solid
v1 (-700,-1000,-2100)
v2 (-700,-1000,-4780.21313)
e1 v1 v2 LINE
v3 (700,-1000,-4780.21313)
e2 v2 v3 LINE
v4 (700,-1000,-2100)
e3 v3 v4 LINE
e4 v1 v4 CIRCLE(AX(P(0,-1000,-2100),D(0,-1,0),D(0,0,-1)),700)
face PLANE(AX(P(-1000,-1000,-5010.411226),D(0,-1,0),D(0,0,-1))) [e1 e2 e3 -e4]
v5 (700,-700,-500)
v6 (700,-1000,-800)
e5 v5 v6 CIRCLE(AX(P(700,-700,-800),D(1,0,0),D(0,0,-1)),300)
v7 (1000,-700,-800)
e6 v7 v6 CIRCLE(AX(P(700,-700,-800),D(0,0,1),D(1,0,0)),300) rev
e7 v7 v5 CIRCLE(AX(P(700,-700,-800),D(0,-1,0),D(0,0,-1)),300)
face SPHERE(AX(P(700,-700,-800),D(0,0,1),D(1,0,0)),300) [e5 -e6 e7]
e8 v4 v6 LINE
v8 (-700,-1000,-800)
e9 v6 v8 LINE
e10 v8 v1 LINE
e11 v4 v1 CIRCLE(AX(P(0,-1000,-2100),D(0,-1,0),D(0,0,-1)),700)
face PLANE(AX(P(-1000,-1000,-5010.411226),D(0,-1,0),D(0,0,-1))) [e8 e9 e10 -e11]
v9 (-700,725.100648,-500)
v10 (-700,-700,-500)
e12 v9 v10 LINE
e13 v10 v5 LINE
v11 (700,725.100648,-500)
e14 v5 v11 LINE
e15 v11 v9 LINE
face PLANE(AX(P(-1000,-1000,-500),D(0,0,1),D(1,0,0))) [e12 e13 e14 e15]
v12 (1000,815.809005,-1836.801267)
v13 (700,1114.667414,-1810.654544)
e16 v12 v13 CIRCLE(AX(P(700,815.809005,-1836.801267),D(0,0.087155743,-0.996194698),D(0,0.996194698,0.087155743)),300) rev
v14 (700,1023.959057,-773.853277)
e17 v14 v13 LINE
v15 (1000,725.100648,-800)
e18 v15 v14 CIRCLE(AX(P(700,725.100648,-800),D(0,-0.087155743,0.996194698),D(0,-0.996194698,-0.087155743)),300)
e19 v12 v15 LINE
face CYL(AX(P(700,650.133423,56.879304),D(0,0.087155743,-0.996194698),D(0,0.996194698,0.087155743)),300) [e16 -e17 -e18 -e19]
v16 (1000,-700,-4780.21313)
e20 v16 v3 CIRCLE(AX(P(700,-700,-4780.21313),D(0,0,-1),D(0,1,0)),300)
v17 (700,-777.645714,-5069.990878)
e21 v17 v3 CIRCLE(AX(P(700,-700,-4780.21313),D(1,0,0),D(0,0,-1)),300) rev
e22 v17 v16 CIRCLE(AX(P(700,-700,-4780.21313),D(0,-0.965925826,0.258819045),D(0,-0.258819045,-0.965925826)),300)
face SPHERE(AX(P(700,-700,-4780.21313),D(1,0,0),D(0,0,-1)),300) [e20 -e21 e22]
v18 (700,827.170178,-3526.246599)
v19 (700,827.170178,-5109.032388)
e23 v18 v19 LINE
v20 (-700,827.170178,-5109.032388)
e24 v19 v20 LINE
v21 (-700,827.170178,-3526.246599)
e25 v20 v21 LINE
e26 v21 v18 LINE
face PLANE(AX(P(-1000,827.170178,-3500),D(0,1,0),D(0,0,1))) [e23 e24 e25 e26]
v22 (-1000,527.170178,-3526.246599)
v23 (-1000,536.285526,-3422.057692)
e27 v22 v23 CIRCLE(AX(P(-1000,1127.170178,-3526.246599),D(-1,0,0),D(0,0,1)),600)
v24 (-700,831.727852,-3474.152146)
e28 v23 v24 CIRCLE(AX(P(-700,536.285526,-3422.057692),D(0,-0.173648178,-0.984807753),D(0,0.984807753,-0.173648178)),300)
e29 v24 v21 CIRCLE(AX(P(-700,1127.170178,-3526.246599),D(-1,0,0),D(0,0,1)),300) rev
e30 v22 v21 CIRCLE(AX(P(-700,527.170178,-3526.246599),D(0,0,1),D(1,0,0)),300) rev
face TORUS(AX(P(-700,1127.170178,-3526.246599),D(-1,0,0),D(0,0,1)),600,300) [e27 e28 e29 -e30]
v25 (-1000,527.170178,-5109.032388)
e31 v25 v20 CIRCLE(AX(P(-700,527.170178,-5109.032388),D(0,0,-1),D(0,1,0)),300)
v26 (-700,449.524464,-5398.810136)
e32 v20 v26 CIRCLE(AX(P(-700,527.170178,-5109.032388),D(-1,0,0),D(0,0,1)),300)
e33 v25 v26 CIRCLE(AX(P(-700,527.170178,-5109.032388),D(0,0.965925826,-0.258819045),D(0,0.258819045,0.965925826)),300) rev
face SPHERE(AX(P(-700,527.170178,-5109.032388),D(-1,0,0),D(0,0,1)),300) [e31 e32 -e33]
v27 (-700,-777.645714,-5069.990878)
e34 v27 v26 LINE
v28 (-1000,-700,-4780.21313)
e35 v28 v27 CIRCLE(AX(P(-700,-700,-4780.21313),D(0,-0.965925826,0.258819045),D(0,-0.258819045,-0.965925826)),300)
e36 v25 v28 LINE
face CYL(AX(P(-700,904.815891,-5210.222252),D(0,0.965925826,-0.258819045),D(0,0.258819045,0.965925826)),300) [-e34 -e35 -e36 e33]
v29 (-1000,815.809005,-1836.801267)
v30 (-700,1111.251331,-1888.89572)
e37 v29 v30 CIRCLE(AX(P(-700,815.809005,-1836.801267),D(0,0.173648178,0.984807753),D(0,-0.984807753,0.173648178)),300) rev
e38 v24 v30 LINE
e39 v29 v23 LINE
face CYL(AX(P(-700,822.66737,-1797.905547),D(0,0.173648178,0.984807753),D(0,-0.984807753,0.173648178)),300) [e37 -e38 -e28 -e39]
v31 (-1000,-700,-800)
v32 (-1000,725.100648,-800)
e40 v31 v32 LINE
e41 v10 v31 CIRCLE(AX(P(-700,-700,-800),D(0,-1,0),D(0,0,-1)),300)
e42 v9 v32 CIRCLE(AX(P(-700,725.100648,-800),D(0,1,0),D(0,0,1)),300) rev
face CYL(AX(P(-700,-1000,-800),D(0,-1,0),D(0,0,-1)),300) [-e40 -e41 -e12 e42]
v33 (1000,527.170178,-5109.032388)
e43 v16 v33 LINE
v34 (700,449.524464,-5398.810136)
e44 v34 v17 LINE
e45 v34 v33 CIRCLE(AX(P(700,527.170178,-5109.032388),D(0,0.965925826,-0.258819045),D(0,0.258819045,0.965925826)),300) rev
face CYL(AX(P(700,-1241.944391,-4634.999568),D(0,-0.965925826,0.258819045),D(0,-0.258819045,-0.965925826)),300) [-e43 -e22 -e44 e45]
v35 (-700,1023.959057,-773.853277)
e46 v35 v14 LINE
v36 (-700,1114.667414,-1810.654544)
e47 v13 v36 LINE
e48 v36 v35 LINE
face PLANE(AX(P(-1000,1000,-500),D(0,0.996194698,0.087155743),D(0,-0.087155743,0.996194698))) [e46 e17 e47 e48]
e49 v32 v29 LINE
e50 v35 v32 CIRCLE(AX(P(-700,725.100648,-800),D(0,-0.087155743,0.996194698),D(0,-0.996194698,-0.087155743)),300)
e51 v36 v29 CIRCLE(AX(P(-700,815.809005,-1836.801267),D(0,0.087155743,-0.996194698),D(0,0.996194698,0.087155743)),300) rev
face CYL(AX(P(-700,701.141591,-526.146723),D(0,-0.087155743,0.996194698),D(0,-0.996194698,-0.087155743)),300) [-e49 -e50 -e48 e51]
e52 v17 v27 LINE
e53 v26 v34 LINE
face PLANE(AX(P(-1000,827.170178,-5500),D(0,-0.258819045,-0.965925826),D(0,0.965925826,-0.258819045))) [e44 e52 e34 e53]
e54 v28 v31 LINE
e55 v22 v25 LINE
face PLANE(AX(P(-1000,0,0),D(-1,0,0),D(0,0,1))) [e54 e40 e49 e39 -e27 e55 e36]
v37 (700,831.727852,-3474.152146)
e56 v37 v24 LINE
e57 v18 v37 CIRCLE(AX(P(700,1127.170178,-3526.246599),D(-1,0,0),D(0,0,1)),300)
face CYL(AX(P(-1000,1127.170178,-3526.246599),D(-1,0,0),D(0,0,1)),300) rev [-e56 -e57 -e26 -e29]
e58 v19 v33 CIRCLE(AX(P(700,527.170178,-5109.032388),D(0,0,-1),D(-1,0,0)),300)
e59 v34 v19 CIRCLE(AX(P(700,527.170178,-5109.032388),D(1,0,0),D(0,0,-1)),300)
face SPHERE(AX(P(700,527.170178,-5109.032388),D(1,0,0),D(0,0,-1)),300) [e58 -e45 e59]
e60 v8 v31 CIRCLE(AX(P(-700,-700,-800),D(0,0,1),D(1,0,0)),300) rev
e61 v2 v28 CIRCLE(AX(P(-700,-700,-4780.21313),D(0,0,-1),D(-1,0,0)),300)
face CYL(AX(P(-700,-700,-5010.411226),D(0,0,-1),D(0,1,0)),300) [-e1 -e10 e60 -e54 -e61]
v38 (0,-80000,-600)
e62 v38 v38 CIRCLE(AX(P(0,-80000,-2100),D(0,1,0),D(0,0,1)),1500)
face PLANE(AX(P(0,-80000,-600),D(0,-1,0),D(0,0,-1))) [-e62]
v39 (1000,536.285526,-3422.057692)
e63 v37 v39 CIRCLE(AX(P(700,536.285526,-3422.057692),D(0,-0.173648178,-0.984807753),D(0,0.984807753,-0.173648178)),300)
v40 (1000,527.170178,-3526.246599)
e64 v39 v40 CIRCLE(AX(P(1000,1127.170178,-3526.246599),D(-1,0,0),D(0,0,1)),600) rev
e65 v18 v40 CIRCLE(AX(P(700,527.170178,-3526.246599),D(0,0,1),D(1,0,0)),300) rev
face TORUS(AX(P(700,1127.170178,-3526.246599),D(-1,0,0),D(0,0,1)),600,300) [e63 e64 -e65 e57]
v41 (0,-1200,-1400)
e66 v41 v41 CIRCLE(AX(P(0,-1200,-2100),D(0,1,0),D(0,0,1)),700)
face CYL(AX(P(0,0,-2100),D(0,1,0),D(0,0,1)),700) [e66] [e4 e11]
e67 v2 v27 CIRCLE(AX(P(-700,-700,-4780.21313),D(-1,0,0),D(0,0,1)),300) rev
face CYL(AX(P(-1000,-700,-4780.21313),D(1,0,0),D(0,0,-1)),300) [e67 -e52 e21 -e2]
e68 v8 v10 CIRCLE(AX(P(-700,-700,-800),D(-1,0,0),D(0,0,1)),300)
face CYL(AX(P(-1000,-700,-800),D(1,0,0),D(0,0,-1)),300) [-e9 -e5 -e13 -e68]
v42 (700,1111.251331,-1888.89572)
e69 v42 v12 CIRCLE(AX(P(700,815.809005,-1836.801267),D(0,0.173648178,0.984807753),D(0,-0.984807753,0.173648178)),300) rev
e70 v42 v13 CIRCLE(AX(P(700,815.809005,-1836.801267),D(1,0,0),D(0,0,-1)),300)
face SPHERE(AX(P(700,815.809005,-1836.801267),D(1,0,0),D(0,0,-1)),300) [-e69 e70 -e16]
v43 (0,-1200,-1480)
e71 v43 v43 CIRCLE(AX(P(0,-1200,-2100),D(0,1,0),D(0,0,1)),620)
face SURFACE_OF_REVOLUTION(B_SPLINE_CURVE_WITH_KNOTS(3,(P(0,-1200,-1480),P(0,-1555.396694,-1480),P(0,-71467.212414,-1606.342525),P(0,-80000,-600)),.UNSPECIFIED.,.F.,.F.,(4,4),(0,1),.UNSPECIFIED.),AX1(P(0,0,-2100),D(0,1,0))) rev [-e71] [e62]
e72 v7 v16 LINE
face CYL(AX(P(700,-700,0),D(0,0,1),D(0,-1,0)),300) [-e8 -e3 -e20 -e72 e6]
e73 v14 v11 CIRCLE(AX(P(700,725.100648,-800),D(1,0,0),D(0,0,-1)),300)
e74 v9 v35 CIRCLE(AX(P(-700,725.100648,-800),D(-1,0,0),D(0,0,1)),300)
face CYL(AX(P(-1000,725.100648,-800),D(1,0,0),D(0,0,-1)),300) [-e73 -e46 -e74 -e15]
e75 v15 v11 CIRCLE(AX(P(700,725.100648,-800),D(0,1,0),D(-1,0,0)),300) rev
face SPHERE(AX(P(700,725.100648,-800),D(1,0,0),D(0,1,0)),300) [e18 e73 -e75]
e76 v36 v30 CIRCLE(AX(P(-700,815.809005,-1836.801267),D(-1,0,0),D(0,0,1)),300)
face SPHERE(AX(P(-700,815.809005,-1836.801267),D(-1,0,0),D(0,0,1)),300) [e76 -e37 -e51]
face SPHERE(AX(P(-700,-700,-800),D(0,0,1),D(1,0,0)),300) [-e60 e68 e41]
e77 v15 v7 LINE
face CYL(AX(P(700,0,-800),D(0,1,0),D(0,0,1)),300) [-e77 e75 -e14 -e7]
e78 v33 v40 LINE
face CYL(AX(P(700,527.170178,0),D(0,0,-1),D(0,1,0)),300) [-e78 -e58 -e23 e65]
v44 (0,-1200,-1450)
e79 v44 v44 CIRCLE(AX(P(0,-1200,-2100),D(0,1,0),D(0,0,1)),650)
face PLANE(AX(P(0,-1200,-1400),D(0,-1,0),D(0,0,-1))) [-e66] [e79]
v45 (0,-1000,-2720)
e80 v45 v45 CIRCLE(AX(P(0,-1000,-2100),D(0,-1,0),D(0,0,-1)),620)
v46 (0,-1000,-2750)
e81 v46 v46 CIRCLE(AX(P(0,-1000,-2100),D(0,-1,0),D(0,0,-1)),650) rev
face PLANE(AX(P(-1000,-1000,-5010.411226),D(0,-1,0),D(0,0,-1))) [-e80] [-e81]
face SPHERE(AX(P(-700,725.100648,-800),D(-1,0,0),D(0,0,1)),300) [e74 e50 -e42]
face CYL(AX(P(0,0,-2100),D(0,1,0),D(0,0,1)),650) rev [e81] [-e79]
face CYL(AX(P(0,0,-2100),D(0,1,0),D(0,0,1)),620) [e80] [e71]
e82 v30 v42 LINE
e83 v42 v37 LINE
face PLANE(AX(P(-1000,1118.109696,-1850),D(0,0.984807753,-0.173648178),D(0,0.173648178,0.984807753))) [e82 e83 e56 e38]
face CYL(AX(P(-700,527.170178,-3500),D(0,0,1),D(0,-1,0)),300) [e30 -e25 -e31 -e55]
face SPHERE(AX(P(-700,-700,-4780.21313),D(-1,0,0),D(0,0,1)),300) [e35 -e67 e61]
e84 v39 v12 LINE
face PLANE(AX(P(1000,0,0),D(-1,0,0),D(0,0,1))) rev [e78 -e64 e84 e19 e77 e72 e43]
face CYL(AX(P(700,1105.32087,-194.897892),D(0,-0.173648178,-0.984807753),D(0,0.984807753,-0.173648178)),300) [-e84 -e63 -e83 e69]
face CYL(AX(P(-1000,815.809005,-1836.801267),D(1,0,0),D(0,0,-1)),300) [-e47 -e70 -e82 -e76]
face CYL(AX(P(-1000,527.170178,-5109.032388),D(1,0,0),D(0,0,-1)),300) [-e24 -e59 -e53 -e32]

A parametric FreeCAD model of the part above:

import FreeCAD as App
import Part
import Sketcher
from FreeCAD import Vector
Q = App.Units.Quantity


def add_polygon(sketch, points):
    """Adds a closed chain of lines whose ends are joined by coincident constraints."""
    first, n = sketch.GeometryCount, len(points)
    for a, b in zip(points, points[1:] + points[:1]):
        sketch.addGeometry(Part.LineSegment(App.Vector(*a, 0), App.Vector(*b, 0)), False)
    for i in range(n):
        sketch.addConstraint(Sketcher.Constraint("Coincident", first + i, 2, first + (i + 1) % n, 1))

doc = App.newDocument("Part")
body = doc.addObject("PartDesign::Body", "Body")

# Sketch on YZ plane
sketch1 = body.newObject("Sketcher::SketchObject", "Sketch")
sketch1.AttachmentSupport = (doc.getObject("YZ_Plane"), [""])
sketch1.MapMode = "FlatFace"
add_polygon(sketch1, [(1000, -500), (-1000, -500), (-1000, -5010.411226), (827.170178, -5500), (827.170178, -3500), (1118.109696, -1850)])  # lines 0-5
sketch1.addConstraint([
    Sketcher.Constraint("Horizontal", 0),
    Sketcher.Constraint("Vertical", 1),
    Sketcher.Constraint("Vertical", 3),
    Sketcher.Constraint("Equal", 0, 3),
    Sketcher.Constraint("DistanceX", 0, 2, 0, 1, 2000.0),
    Sketcher.Constraint("Angle", 2, Q("-15 deg")),
    Sketcher.Constraint("Angle", 4, Q("80 deg")),
    Sketcher.Constraint("Angle", 5, Q("95 deg")),
    Sketcher.Constraint("DistanceX", 0, 2, -1, 1, 1000.0),
    Sketcher.Constraint("DistanceY", 0, 2, -1, 1, 500.0),
    Sketcher.Constraint("DistanceY", 2, 2, -1, 1, 5500.0),
    Sketcher.Constraint("DistanceY", 4, 2, -1, 1, 1850.0),
])
pad1 = body.newObject("PartDesign::Pad", "Pad")
pad1.Profile = sketch1
pad1.Type = "TwoLengths"
pad1.Length = 1000
pad1.Length2 = 1000
doc.recompute()

fillet = body.newObject("PartDesign::Fillet", "Fillet")
fillet.Base = (pad1, ["Edge1"])
fillet.UseAllEdges = True
fillet.Radius = 300

# Sketch on YZ plane
sketch2 = body.newObject("Sketcher::SketchObject", "Sketch001")
sketch2.AttachmentSupport = (doc.getObject("YZ_Plane"), [""])
sketch2.MapMode = "FlatFace"
sketch2.addGeometry([
    Part.LineSegment(Vector(-700, -2100, 0), Vector(-700, -1400, 0)),  # 0
    Part.LineSegment(Vector(-700, -1400, 0), Vector(-1200, -1400, 0)),  # 1
    Part.LineSegment(Vector(-1200, -1400, 0), Vector(-1200, -1450, 0)),  # 2
    Part.LineSegment(Vector(-1200, -1450, 0), Vector(-1000, -1450, 0)),  # 3
    Part.LineSegment(Vector(-1000, -1450, 0), Vector(-1000, -1480, 0)),  # 4
    Part.LineSegment(Vector(-1000, -1480, 0), Vector(-1200, -1480, 0)),  # 5
    Part.BSplineCurve([Vector(-1200, -1480, 0), Vector(-1555.396694, -1480, 0), Vector(-71467.212414, -1606.342525, 0), Vector(-80000, -600, 0)], [4, 4], [0, 1], False, 3, [1, 1, 1, 1], False),  # 6
    Part.LineSegment(Vector(-80000, -600, 0), Vector(-80000, -2100, 0)),  # 7
    Part.LineSegment(Vector(-80000, -2100, 0), Vector(-700, -2100, 0)),  # 8
], False)
sketch2.addGeometry(Part.LineSegment(Vector(-700, -2100, 0), Vector(-80000, -2100, 0)), True)  # axis
sketch2.addConstraint([
    Sketcher.Constraint("Block", 6),
    Sketcher.Constraint("Coincident", 0, 2, 1, 1),
    Sketcher.Constraint("Coincident", 1, 2, 2, 1),
    Sketcher.Constraint("Coincident", 2, 2, 3, 1),
    Sketcher.Constraint("Coincident", 3, 2, 4, 1),
    Sketcher.Constraint("Coincident", 4, 2, 5, 1),
    Sketcher.Constraint("Coincident", 5, 2, 6, 1),
    Sketcher.Constraint("Coincident", 6, 2, 7, 1),
    Sketcher.Constraint("Coincident", 7, 2, 8, 1),
    Sketcher.Constraint("Coincident", 8, 2, 0, 1),
    Sketcher.Constraint("Vertical", 0),
    Sketcher.Constraint("Horizontal", 1),
    Sketcher.Constraint("Vertical", 2),
    Sketcher.Constraint("Horizontal", 3),
    Sketcher.Constraint("Vertical", 4),
    Sketcher.Constraint("Horizontal", 5),
    Sketcher.Constraint("Vertical", 7),
    Sketcher.Constraint("Horizontal", 8),
    Sketcher.Constraint("Horizontal", 9),
    Sketcher.Constraint("Coincident", 9, 1, 8, 2),
    Sketcher.Constraint("Vertical", 2, 2, 5, 2),
    Sketcher.Constraint("Equal", 8, 9),
    Sketcher.Constraint("DistanceX", 1, 2, 1, 1, 500.0),
    Sketcher.Constraint("DistanceX", 3, 1, 3, 2, 200.0),
    Sketcher.Constraint("DistanceY", 0, 1, 0, 2, 700.0),
    Sketcher.Constraint("DistanceY", 2, 2, 2, 1, 50.0),
    Sketcher.Constraint("DistanceY", 4, 2, 4, 1, 30.0),
])
revolution = body.newObject("PartDesign::Revolution", "Revolution")
revolution.Profile = sketch2
revolution.ReferenceAxis = (sketch2, ["Axis0"])
revolution.Angle = 360

doc.recompute()
